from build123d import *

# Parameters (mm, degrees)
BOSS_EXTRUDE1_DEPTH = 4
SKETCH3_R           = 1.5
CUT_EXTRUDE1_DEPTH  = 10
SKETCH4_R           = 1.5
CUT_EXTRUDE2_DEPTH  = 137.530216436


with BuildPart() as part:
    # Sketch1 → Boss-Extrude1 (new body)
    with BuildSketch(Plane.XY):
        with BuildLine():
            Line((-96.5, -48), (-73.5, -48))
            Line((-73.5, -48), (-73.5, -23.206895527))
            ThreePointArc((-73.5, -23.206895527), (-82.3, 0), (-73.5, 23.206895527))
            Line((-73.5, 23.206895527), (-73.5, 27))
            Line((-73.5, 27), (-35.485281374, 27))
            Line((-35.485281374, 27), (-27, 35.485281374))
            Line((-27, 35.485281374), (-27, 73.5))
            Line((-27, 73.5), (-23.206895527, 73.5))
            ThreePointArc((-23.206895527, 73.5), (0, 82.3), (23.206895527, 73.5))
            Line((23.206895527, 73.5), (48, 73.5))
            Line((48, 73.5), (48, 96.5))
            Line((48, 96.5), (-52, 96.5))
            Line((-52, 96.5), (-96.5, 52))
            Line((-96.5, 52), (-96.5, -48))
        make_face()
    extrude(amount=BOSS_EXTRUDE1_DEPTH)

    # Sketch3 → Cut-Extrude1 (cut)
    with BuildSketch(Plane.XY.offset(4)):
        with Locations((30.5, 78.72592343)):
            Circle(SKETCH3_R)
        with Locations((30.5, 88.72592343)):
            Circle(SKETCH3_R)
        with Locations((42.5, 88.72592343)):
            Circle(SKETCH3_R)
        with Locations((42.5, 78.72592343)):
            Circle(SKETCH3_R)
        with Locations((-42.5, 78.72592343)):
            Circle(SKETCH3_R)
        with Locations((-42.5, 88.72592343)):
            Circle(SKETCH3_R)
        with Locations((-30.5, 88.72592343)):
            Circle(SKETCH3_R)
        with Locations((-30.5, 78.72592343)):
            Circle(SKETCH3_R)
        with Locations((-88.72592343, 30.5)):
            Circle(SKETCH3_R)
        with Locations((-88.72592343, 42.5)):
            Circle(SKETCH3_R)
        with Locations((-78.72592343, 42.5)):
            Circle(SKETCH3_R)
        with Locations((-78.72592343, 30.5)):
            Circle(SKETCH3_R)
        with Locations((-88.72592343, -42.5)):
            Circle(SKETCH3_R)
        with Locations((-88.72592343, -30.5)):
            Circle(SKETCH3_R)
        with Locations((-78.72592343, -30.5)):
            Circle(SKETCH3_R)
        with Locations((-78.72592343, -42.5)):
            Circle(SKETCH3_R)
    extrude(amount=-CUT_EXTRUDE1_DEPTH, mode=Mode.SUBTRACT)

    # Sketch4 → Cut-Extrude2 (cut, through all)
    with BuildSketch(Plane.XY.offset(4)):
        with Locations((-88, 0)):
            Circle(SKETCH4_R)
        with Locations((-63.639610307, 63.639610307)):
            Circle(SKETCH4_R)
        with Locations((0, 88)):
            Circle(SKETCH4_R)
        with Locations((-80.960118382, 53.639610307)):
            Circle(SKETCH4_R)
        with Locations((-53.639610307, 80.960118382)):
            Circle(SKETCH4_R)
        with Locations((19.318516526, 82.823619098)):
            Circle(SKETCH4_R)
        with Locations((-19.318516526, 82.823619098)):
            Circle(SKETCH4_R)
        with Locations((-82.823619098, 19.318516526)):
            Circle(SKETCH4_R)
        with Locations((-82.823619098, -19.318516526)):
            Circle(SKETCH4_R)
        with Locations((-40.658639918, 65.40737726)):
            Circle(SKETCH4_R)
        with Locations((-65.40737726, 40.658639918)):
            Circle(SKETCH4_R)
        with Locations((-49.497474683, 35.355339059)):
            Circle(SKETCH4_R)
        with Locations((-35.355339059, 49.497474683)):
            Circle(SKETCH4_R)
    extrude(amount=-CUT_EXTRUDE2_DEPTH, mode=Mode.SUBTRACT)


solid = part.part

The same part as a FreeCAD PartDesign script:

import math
import FreeCAD as App
import Part
import Sketcher
from FreeCAD import Vector
Q = App.Units.Quantity

doc = App.newDocument("Part")
body = doc.addObject("PartDesign::Body", "Body")

sketch1 = body.newObject("Sketcher::SketchObject", "Sketch")
sketch1.AttachmentSupport = (doc.getObject("XY_Plane"), [""])
sketch1.MapMode = "FlatFace"
sketch1.addGeometry(Part.LineSegment(Vector(-96.5, -48, 0), Vector(-73.5, -48, 0)), False)
sketch1.addGeometry(Part.LineSegment(Vector(-73.5, -48, 0), Vector(-73.5, -23.2, 0)), False)
sketch1.addGeometry(Part.ArcOfCircle(Part.Circle(Vector(-47.3, 0, 0), Vector(0, 0, 1), 35), math.radians(138), math.radians(222)), False)
sketch1.addGeometry(Part.LineSegment(Vector(-73.5, 23.2, 0), Vector(-73.5, 27, 0)), False)
sketch1.addGeometry(Part.LineSegment(Vector(-73.5, 27, 0), Vector(-35.5, 27, 0)), False)
sketch1.addGeometry(Part.LineSegment(Vector(-35.5, 27, 0), Vector(-27, 35.5, 0)), False)
sketch1.addGeometry(Part.LineSegment(Vector(-27, 35.5, 0), Vector(-27, 73.5, 0)), False)
sketch1.addGeometry(Part.LineSegment(Vector(-27, 73.5, 0), Vector(-23.2, 73.5, 0)), False)
sketch1.addGeometry(Part.ArcOfCircle(Part.Circle(Vector(0, 47.3, 0), Vector(0, 0, 1), 35), math.radians(48), math.radians(132)), False)
sketch1.addGeometry(Part.LineSegment(Vector(23.2, 73.5, 0), Vector(48, 73.5, 0)), False)
sketch1.addGeometry(Part.LineSegment(Vector(48, 73.5, 0), Vector(48, 96.5, 0)), False)
sketch1.addGeometry(Part.LineSegment(Vector(48, 96.5, 0), Vector(-52, 96.5, 0)), False)
sketch1.addGeometry(Part.LineSegment(Vector(-52, 96.5, 0), Vector(-96.5, 52, 0)), False)
sketch1.addGeometry(Part.LineSegment(Vector(-96.5, 52, 0), Vector(-96.5, -48, 0)), False)
sketch1.addConstraint(Sketcher.Constraint("Coincident", 0, 2, 1, 1))
sketch1.addConstraint(Sketcher.Constraint("Coincident", 1, 2, 2, 2))
sketch1.addConstraint(Sketcher.Constraint("Coincident", 2, 1, 3, 1))
sketch1.addConstraint(Sketcher.Constraint("Coincident", 3, 2, 4, 1))
sketch1.addConstraint(Sketcher.Constraint("Coincident", 4, 2, 5, 1))
sketch1.addConstraint(Sketcher.Constraint("Coincident", 5, 2, 6, 1))
sketch1.addConstraint(Sketcher.Constraint("Coincident", 6, 2, 7, 1))
sketch1.addConstraint(Sketcher.Constraint("Coincident", 7, 2, 8, 2))
sketch1.addConstraint(Sketcher.Constraint("Coincident", 8, 1, 9, 1))
sketch1.addConstraint(Sketcher.Constraint("Coincident", 9, 2, 10, 1))
sketch1.addConstraint(Sketcher.Constraint("Coincident", 10, 2, 11, 1))
sketch1.addConstraint(Sketcher.Constraint("Coincident", 11, 2, 12, 1))
sketch1.addConstraint(Sketcher.Constraint("Coincident", 12, 2, 13, 1))
sketch1.addConstraint(Sketcher.Constraint("Coincident", 13, 2, 0, 1))
sketch1.addConstraint(Sketcher.Constraint("Horizontal", 0))
sketch1.addConstraint(Sketcher.Constraint("Vertical", 1))
sketch1.addConstraint(Sketcher.Constraint("Vertical", 3))
sketch1.addConstraint(Sketcher.Constraint("Horizontal", 4))
sketch1.addConstraint(Sketcher.Constraint("Vertical", 6))
sketch1.addConstraint(Sketcher.Constraint("Horizontal", 7))
sketch1.addConstraint(Sketcher.Constraint("Horizontal", 9))
sketch1.addConstraint(Sketcher.Constraint("Vertical", 10))
sketch1.addConstraint(Sketcher.Constraint("Horizontal", 11))
sketch1.addConstraint(Sketcher.Constraint("Vertical", 13))
sketch1.addConstraint(Sketcher.Constraint("Equal", 2, 8))
sketch1.addConstraint(Sketcher.Constraint("Symmetric", 7, 2, 8, 1, -2))
sketch1.addConstraint(Sketcher.Constraint("Symmetric", 1, 2, 2, 1, -1))
sketch1.addConstraint(Sketcher.Constraint("Parallel", 5, 12))
sketch1.addConstraint(Sketcher.Constraint("Equal", 9, 1))
sketch1.addConstraint(Sketcher.Constraint("Equal", 7, 3))
sketch1.addConstraint(Sketcher.Constraint("Equal", 4, 6))
sketch1.addConstraint(Sketcher.Constraint("Equal", 0, 10))
sketch1.addConstraint(Sketcher.Constraint("Equal", 11, 13))
sketch1.addConstraint(Sketcher.Constraint("Radius", 2, 35.0))
sketch1.addConstraint(Sketcher.Constraint("DistanceX", 0, 1, 0, 2, 23.0))
sketch1.addConstraint(Sketcher.Constraint("DistanceX", 11, 2, 11, 1, 100.0))
sketch1.addConstraint(Sketcher.Constraint("Angle", 5, Q("45 deg")))
sketch1.addConstraint(Sketcher.Constraint("Distance", 5, 12.0))
sketch1.addConstraint(Sketcher.Constraint("DistanceY", 0, 2, -1, 1, 48.0))
sketch1.addConstraint(Sketcher.Constraint("DistanceY", -1, 1, 3, 2, 27.0))
sketch1.addConstraint(Sketcher.Constraint("DistanceX", 2, 3, -1, 1, 47.3))
sketch1.addConstraint(Sketcher.Constraint("DistanceX", 0, 2, -1, 1, 73.5))
pad1 = body.newObject("PartDesign::Pad", "Pad")
pad1.Profile = sketch1
pad1.Length = 4

sketch2 = body.newObject("Sketcher::SketchObject", "Sketch001")
sketch2.AttachmentSupport = (doc.getObject("XY_Plane"), [""])
sketch2.MapMode = "FlatFace"
sketch2.AttachmentOffset = App.Placement(Vector(0, 0, 4), App.Rotation())
sketch2.addGeometry(Part.Circle(Vector(30.5, 78.7, 0), Vector(0, 0, 1), 1.5), False)
sketch2.addGeometry(Part.Circle(Vector(30.5, 88.7, 0), Vector(0, 0, 1), 1.5), False)
sketch2.addGeometry(Part.Circle(Vector(42.5, 88.7, 0), Vector(0, 0, 1), 1.5), False)
sketch2.addGeometry(Part.Circle(Vector(42.5, 78.7, 0), Vector(0, 0, 1), 1.5), False)
sketch2.addGeometry(Part.Circle(Vector(-42.5, 78.7, 0), Vector(0, 0, 1), 1.5), False)
sketch2.addGeometry(Part.Circle(Vector(-42.5, 88.7, 0), Vector(0, 0, 1), 1.5), False)
sketch2.addGeometry(Part.Circle(Vector(-30.5, 88.7, 0), Vector(0, 0, 1), 1.5), False)
sketch2.addGeometry(Part.Circle(Vector(-30.5, 78.7, 0), Vector(0, 0, 1), 1.5), False)
sketch2.addGeometry(Part.Circle(Vector(-88.7, 30.5, 0), Vector(0, 0, 1), 1.5), False)
sketch2.addGeometry(Part.Circle(Vector(-88.7, 42.5, 0), Vector(0, 0, 1), 1.5), False)
sketch2.addGeometry(Part.Circle(Vector(-78.7, 42.5, 0), Vector(0, 0, 1), 1.5), False)
sketch2.addGeometry(Part.Circle(Vector(-78.7, 30.5, 0), Vector(0, 0, 1), 1.5), False)
sketch2.addGeometry(Part.Circle(Vector(-88.7, -42.5, 0), Vector(0, 0, 1), 1.5), False)
sketch2.addGeometry(Part.Circle(Vector(-88.7, -30.5, 0), Vector(0, 0, 1), 1.5), False)
sketch2.addGeometry(Part.Circle(Vector(-78.7, -30.5, 0), Vector(0, 0, 1), 1.5), False)
sketch2.addGeometry(Part.Circle(Vector(-78.7, -42.5, 0), Vector(0, 0, 1), 1.5), False)
sketch2.addConstraint(Sketcher.Constraint("Equal", 0, 1))
sketch2.addConstraint(Sketcher.Constraint("Equal", 1, 2))
sketch2.addConstraint(Sketcher.Constraint("Equal", 2, 3))
sketch2.addConstraint(Sketcher.Constraint("Equal", 3, 4))
sketch2.addConstraint(Sketcher.Constraint("Equal", 4, 5))
sketch2.addConstraint(Sketcher.Constraint("Equal", 5, 6))
sketch2.addConstraint(Sketcher.Constraint("Equal", 6, 7))
sketch2.addConstraint(Sketcher.Constraint("Equal", 7, 8))
sketch2.addConstraint(Sketcher.Constraint("Equal", 8, 9))
sketch2.addConstraint(Sketcher.Constraint("Equal", 9, 10))
sketch2.addConstraint(Sketcher.Constraint("Equal", 10, 11))
sketch2.addConstraint(Sketcher.Constraint("Equal", 11, 12))
sketch2.addConstraint(Sketcher.Constraint("Equal", 12, 13))
sketch2.addConstraint(Sketcher.Constraint("Equal", 13, 14))
sketch2.addConstraint(Sketcher.Constraint("Equal", 14, 15))
sketch2.addConstraint(Sketcher.Constraint("Symmetric", 3, 3, 4, 3, -2))
sketch2.addConstraint(Sketcher.Constraint("Symmetric", 2, 3, 5, 3, -2))
sketch2.addConstraint(Sketcher.Constraint("Symmetric", 1, 3, 6, 3, -2))
sketch2.addConstraint(Sketcher.Constraint("Symmetric", 0, 3, 7, 3, -2))
sketch2.addConstraint(Sketcher.Constraint("Symmetric", 9, 3, 12, 3, -1))
sketch2.addConstraint(Sketcher.Constraint("Symmetric", 8, 3, 13, 3, -1))
sketch2.addConstraint(Sketcher.Constraint("Symmetric", 11, 3, 14, 3, -1))
sketch2.addConstraint(Sketcher.Constraint("Symmetric", 10, 3, 15, 3, -1))
sketch2.addConstraint(Sketcher.Constraint("Horizontal", 1, 3, 2, 3))
sketch2.addConstraint(Sketcher.Constraint("Horizontal", 0, 3, 3, 3))
sketch2.addConstraint(Sketcher.Constraint("Horizontal", 9, 3, 10, 3))
sketch2.addConstraint(Sketcher.Constraint("Horizontal", 8, 3, 11, 3))
sketch2.addConstraint(Sketcher.Constraint("Vertical", 0, 3, 1, 3))
sketch2.addConstraint(Sketcher.Constraint("Vertical", 2, 3, 3, 3))
sketch2.addConstraint(Sketcher.Constraint("Vertical", 8, 3, 9, 3))
sketch2.addConstraint(Sketcher.Constraint("Vertical", 10, 3, 11, 3))
sketch2.addConstraint(Sketcher.Constraint("Diameter", 0, 3.0))
sketch2.addConstraint(Sketcher.Constraint("DistanceY", 0, 3, 1, 3, 10.0))
sketch2.addConstraint(Sketcher.Constraint("DistanceX", 1, 3, 2, 3, 12.0))
sketch2.addConstraint(Sketcher.Constraint("DistanceX", 4, 3, 0, 3, 73.0))
sketch2.addConstraint(Sketcher.Constraint("DistanceY", 8, 3, 9, 3, 12.0))
sketch2.addConstraint(Sketcher.Constraint("DistanceX", 9, 3, 10, 3, 10.0))
sketch2.addConstraint(Sketcher.Constraint("DistanceY", 12, 3, 8, 3, 73.0))
sketch2.addConstraint(Sketcher.Constraint("DistanceY", -1, 1, 0, 3, 78.725923))
sketch2.addConstraint(Sketcher.Constraint("DistanceX", 8, 3, -1, 1, 88.725923))
pocket1 = body.newObject("PartDesign::Pocket", "Pocket")
pocket1.Profile = sketch2
pocket1.Length = 10

sketch3 = body.newObject("Sketcher::SketchObject", "Sketch002")
sketch3.AttachmentSupport = (doc.getObject("XY_Plane"), [""])
sketch3.MapMode = "FlatFace"
sketch3.AttachmentOffset = App.Placement(Vector(0, 0, 4), App.Rotation())
sketch3.addGeometry(Part.Circle(Vector(-88, 0, 0), Vector(0, 0, 1), 1.5), False)
sketch3.addGeometry(Part.Circle(Vector(-63.6, 63.6, 0), Vector(0, 0, 1), 1.5), False)
sketch3.addGeometry(Part.Circle(Vector(0, 88, 0), Vector(0, 0, 1), 1.5), False)
sketch3.addGeometry(Part.Circle(Vector(-81, 53.6, 0), Vector(0, 0, 1), 1.5), False)
sketch3.addGeometry(Part.Circle(Vector(-53.6, 81, 0), Vector(0, 0, 1), 1.5), False)
sketch3.addGeometry(Part.Circle(Vector(19.3, 82.8, 0), Vector(0, 0, 1), 1.5), False)
sketch3.addGeometry(Part.Circle(Vector(-19.3, 82.8, 0), Vector(0, 0, 1), 1.5), False)
sketch3.addGeometry(Part.Circle(Vector(-82.8, 19.3, 0), Vector(0, 0, 1), 1.5), False)
sketch3.addGeometry(Part.Circle(Vector(-82.8, -19.3, 0), Vector(0, 0, 1), 1.5), False)
sketch3.addGeometry(Part.Circle(Vector(-40.7, 65.4, 0), Vector(0, 0, 1), 1.5), False)
sketch3.addGeometry(Part.Circle(Vector(-65.4, 40.7, 0), Vector(0, 0, 1), 1.5), False)
sketch3.addGeometry(Part.Circle(Vector(-49.5, 35.4, 0), Vector(0, 0, 1), 1.5), False)
sketch3.addGeometry(Part.Circle(Vector(-35.4, 49.5, 0), Vector(0, 0, 1), 1.5), False)
sketch3.addConstraint(Sketcher.Constraint("Equal", 0, 1))
sketch3.addConstraint(Sketcher.Constraint("Equal", 1, 2))
sketch3.addConstraint(Sketcher.Constraint("Equal", 2, 3))
sketch3.addConstraint(Sketcher.Constraint("Equal", 3, 4))
sketch3.addConstraint(Sketcher.Constraint("Equal", 4, 5))
sketch3.addConstraint(Sketcher.Constraint("Equal", 5, 6))
sketch3.addConstraint(Sketcher.Constraint("Equal", 6, 7))
sketch3.addConstraint(Sketcher.Constraint("Equal", 7, 8))
sketch3.addConstraint(Sketcher.Constraint("Equal", 8, 9))
sketch3.addConstraint(Sketcher.Constraint("Equal", 9, 10))
sketch3.addConstraint(Sketcher.Constraint("Equal", 10, 11))
sketch3.addConstraint(Sketcher.Constraint("Equal", 11, 12))
sketch3.addConstraint(Sketcher.Constraint("Symmetric", 5, 3, 6, 3, -2))
sketch3.addConstraint(Sketcher.Constraint("Symmetric", 7, 3, 8, 3, -1))
sketch3.addConstraint(Sketcher.Constraint("PointOnObject", 0, 3, -1))
sketch3.addConstraint(Sketcher.Constraint("PointOnObject", 2, 3, -2))
sketch3.addConstraint(Sketcher.Constraint("Diameter", 0, 3.0))
sketch3.addConstraint(Sketcher.Constraint("DistanceX", 0, 3, -1, 1, 88.0))
sketch3.addConstraint(Sketcher.Constraint("DistanceY", -1, 1, 2, 3, 88.0))
sketch3.addConstraint(Sketcher.Constraint("DistanceY", 3, 3, 1, 3, 10.0))
sketch3.addConstraint(Sketcher.Constraint("DistanceX", 1, 3, 4, 3, 10.0))
sketch3.addConstraint(Sketcher.Constraint("DistanceY", 4, 3, 5, 3, 1.863501))
sketch3.addConstraint(Sketcher.Constraint("DistanceX", 3, 3, 6, 3, 61.641602))
sketch3.addConstraint(Sketcher.Constraint("DistanceX", 7, 3, 3, 3, 1.863501))
sketch3.addConstraint(Sketcher.Constraint("DistanceY", 7, 3, 4, 3, 61.641602))
sketch3.addConstraint(Sketcher.Constraint("DistanceY", 11, 3, 10, 3, 5.303301))
sketch3.addConstraint(Sketcher.Constraint("DistanceX", 9, 3, 12, 3, 5.303301))
sketch3.addConstraint(Sketcher.Constraint("DistanceX", 1, 3, -1, 1, 63.63961))
sketch3.addConstraint(Sketcher.Constraint("DistanceY", -1, 1, 1, 3, 63.63961))
sketch3.addConstraint(Sketcher.Constraint("DistanceX", 3, 3, -1, 1, 80.960118))
sketch3.addConstraint(Sketcher.Constraint("DistanceY", -1, 1, 4, 3, 80.960118))
sketch3.addConstraint(Sketcher.Constraint("DistanceX", 9, 3, -1, 1, 40.65864))
sketch3.addConstraint(Sketcher.Constraint("DistanceY", -1, 1, 10, 3, 40.65864))
sketch3.addConstraint(Sketcher.Constraint("DistanceY", 9, 3, 4, 3, 15.552741))
sketch3.addConstraint(Sketcher.Constraint("DistanceX", 3, 3, 10, 3, 15.552741))
sketch3.addConstraint(Sketcher.Constraint("DistanceX", 11, 3, -1, 1, 49.497475))
sketch3.addConstraint(Sketcher.Constraint("DistanceY", -1, 1, 12, 3, 49.497475))
pocket2 = body.newObject("PartDesign::Pocket", "Pocket001")
pocket2.Profile = sketch3
pocket2.Type = "ThroughAll"

doc.recompute()
